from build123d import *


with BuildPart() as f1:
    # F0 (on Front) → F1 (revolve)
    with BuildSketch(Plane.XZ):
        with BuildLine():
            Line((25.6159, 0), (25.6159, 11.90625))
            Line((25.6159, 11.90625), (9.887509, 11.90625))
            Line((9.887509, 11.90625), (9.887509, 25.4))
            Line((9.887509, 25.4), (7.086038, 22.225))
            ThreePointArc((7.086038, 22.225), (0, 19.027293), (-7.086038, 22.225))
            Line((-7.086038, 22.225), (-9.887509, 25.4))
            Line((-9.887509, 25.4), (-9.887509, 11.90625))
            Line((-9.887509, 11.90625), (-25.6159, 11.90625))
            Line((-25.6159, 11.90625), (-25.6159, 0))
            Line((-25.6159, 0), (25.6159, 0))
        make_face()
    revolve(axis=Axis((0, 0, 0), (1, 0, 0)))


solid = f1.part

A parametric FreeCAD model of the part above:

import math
import FreeCAD as App
import Part
import Sketcher

V = App.Vector
Q = App.Units.Quantity

doc = App.newDocument("Part")
params = doc.addObject("Spreadsheet::Sheet", "Params")
for row, (alias, value) in enumerate([
    ("sketch1_width", "2.017 in"),
    ("sketch1_height", "0.46875 in"),
    ("revolution_angle", "360 deg"),
], start=1):
    params.set(f"A{row}", alias)
    params.set(f"B{row}", "=" + value)
    params.setAlias(f"B{row}", alias)

body = doc.addObject("PartDesign::Body", "Body")

sketch1 = doc.addObject("Sketcher::SketchObject", "Sketch")
body.addObject(sketch1)
sketch1.AttachmentSupport = (doc.XZ_Plane, [""])
sketch1.MapMode = "FlatFace"
sketch1.addGeometry([
    Part.LineSegment(V(25.6, 0, 0), V(25.6, 11.9, 0)),
    Part.LineSegment(V(25.6, 11.9, 0), V(9.9, 11.9, 0)),
    Part.LineSegment(V(9.9, 11.9, 0), V(9.9, 25.4, 0)),
    Part.LineSegment(V(9.9, 25.4, 0), V(7.1, 22.2, 0)),
    Part.ArcOfCircle(Part.Circle(V(0, 28.5, 0), V(0, 0, 1), 9.5), math.radians(-139), math.radians(-41)),
    Part.LineSegment(V(-7.1, 22.2, 0), V(-9.9, 25.4, 0)),
    Part.LineSegment(V(-9.9, 25.4, 0), V(-9.9, 11.9, 0)),
    Part.LineSegment(V(-9.9, 11.9, 0), V(-25.6, 11.9, 0)),
    Part.LineSegment(V(-25.6, 11.9, 0), V(-25.6, 0, 0)),
    Part.LineSegment(V(-25.6, 0, 0), V(25.6, 0, 0)),
], False)
sketch1.addConstraint([
    Sketcher.Constraint("Coincident", 0, 2, 1, 1),
    Sketcher.Constraint("Coincident", 1, 2, 2, 1),
    Sketcher.Constraint("Coincident", 2, 2, 3, 1),
    Sketcher.Constraint("Tangent", 3, 2, 4, 2),
    Sketcher.Constraint("Tangent", 4, 1, 5, 1),
    Sketcher.Constraint("Coincident", 5, 2, 6, 1),
    Sketcher.Constraint("Coincident", 6, 2, 7, 1),
    Sketcher.Constraint("Coincident", 7, 2, 8, 1),
    Sketcher.Constraint("Coincident", 8, 2, 9, 1),
    Sketcher.Constraint("Coincident", 9, 2, 0, 1),
    Sketcher.Constraint("Vertical", 0),
    Sketcher.Constraint("Horizontal", 1),
    Sketcher.Constraint("Vertical", 2),
    Sketcher.Constraint("Vertical", 6),
    Sketcher.Constraint("Horizontal", 7),
    Sketcher.Constraint("Vertical", 8),
    Sketcher.Constraint("Horizontal", 9),
    Sketcher.Constraint("Symmetric", 8, 2, 9, 2, -1, 1),
    Sketcher.Constraint("Symmetric", 3, 2, 4, 1, -2),
    Sketcher.Constraint("Symmetric", 1, 2, 6, 2, -2),
    Sketcher.Constraint("DistanceY", -1, 1, 2, 2, Q("1 in")),
    Sketcher.Constraint("DistanceX", 9, 1, 9, 2, Q("2.017 in")),
    Sketcher.Constraint("DistanceY", 0, 1, 0, 2, Q("0.46875 in")),
    Sketcher.Constraint("DistanceY", -1, 1, 3, 2, Q("0.875 in")),
    Sketcher.Constraint("Radius", 4, Q("9.450094 mm")),
    Sketcher.Constraint("DistanceX", 1, 2, 1, 1, Q("15.728391 mm")),
])
sketch1.setExpression("Constraints[21]", "Params.sketch1_width")
sketch1.setExpression("Constraints[22]", "Params.sketch1_height")
revolution = doc.addObject("PartDesign::Revolution", "Revolution")
body.addObject(revolution)
revolution.Profile = sketch1
revolution.ReferenceAxis = (sketch1, ["H_Axis"])
revolution.setExpression("Angle", "Params.revolution_angle")

doc.recompute()
